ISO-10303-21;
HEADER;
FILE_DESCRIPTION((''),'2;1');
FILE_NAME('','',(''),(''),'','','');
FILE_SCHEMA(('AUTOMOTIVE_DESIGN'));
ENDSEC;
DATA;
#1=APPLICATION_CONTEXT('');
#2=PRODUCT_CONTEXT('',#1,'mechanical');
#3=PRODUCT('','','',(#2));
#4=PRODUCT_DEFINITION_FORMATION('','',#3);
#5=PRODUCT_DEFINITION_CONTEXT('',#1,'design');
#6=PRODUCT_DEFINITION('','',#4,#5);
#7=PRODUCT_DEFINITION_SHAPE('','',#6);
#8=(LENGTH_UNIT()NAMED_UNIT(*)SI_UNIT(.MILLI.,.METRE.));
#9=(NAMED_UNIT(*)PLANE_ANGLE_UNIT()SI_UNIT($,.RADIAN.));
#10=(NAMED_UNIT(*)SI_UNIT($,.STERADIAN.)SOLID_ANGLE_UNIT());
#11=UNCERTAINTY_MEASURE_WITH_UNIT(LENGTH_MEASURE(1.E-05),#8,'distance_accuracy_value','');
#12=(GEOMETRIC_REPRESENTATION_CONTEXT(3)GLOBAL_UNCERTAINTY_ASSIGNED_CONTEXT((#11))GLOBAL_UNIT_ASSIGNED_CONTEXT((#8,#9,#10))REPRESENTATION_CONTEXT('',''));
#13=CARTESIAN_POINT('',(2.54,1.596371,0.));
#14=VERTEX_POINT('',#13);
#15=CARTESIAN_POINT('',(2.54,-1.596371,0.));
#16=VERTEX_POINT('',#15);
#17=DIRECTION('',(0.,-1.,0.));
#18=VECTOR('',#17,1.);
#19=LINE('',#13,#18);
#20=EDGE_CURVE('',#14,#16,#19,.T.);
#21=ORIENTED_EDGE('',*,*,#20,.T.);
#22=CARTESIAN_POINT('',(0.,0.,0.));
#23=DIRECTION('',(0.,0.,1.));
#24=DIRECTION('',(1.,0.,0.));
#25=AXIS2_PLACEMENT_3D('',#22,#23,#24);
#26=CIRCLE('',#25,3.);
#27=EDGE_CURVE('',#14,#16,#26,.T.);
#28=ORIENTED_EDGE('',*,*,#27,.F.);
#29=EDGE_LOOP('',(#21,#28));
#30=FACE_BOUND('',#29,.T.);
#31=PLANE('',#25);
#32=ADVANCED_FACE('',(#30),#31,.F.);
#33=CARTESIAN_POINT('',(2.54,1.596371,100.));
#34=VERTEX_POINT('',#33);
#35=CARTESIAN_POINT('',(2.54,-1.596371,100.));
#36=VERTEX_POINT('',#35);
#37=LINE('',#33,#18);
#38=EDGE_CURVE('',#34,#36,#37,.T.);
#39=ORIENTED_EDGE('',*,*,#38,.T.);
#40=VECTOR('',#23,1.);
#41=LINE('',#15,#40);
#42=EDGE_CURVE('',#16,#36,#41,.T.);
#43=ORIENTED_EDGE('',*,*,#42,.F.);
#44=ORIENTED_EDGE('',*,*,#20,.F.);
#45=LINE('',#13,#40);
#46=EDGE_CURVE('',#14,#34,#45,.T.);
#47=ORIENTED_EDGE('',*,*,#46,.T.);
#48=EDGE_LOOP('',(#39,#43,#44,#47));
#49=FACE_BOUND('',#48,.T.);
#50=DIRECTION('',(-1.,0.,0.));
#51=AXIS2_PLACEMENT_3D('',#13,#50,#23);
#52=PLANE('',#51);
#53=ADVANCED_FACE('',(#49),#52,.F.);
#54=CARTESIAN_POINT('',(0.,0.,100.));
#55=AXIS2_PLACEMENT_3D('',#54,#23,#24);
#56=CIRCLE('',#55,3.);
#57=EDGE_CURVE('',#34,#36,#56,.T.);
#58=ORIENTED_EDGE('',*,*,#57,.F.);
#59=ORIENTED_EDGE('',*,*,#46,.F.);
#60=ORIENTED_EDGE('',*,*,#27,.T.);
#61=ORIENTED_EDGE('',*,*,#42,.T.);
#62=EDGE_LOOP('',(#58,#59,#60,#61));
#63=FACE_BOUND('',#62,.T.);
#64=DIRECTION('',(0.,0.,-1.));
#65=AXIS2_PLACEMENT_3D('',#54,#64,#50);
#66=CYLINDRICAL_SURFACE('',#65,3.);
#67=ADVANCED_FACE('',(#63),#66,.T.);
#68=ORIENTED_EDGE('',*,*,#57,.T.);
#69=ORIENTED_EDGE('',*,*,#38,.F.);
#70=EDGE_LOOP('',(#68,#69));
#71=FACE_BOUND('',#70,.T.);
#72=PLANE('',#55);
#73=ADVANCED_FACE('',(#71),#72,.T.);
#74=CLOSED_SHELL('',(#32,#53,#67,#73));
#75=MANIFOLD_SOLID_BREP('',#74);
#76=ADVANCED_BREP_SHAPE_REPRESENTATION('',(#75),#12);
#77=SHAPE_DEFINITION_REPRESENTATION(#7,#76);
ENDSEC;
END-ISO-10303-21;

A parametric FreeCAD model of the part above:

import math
import FreeCAD as App
import Part
import Sketcher

V = App.Vector

doc = App.newDocument("Part")
body = doc.addObject("PartDesign::Body", "Body")

# Sketch on XY plane
sketch1 = body.newObject("Sketcher::SketchObject", "Sketch")
sketch1.AttachmentSupport = (doc.getObject("XY_Plane"), [""])
sketch1.MapMode = "FlatFace"
sketch1.addGeometry(Part.Circle(V(0, 0, 0), V(0, 0, 1), 3), False)
sketch1.addConstraint([
    Sketcher.Constraint("Coincident", 0, 3, -1, 1),
    Sketcher.Constraint("Diameter", 0, 6.0),
])
pad1 = body.newObject("PartDesign::Pad", "Pad")
pad1.Profile = sketch1
pad1.Length = 100

# Sketch on XY plane
sketch2 = body.newObject("Sketcher::SketchObject", "Sketch001")
sketch2.AttachmentSupport = (doc.getObject("XY_Plane"), [""])
sketch2.MapMode = "FlatFace"
sketch2.AttachmentOffset = App.Placement(V(0, 0, 100), App.Rotation())
sketch2.addGeometry([
    Part.LineSegment(V(2.5, 1.6, 0), V(2.5, -1.6, 0)),
    Part.ArcOfCircle(Part.Circle(V(0, 0, 0), V(0, 0, 1), 3), math.radians(-32), math.radians(32)),
], False)
sketch2.addConstraint([
    Sketcher.Constraint("Coincident", 0, 1, 1, 2),
    Sketcher.Constraint("Coincident", 1, 1, 0, 2),
    Sketcher.Constraint("Vertical", 0),
    Sketcher.Constraint("Coincident", 1, 3, -1, 1),
    Sketcher.Constraint("Radius", 1, 3.0),
    Sketcher.Constraint("DistanceX", -1, 1, 0, 1, 2.54),
])
pocket1 = body.newObject("PartDesign::Pocket", "Pocket")
pocket1.Profile = sketch2
pocket1.Type = "ThroughAll"

doc.recompute()
